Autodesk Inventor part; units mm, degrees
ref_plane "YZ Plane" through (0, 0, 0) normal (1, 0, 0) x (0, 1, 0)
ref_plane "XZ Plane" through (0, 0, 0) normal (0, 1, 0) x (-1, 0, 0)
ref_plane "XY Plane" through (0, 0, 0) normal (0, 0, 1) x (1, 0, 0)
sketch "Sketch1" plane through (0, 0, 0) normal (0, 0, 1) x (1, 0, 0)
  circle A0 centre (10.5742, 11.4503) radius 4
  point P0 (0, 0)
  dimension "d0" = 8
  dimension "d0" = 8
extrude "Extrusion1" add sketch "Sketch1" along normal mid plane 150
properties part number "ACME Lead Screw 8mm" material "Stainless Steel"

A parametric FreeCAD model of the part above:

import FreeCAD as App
import Part
import Sketcher
Q = App.Units.Quantity

doc = App.newDocument("Part")
params = doc.addObject("Spreadsheet::Sheet", "Params")
for row, (alias, value) in enumerate([
    ("sketch1_diameter", "8 mm"),
    ("pad1_length", "150 mm"),
], start=1):
    params.set(f"A{row}", alias)
    params.set(f"B{row}", "=" + value)
    params.setAlias(f"B{row}", alias)

body = doc.addObject("PartDesign::Body", "Body")

# Sketch on XY plane
sketch1 = doc.addObject("Sketcher::SketchObject", "Sketch")
body.addObject(sketch1)
sketch1.AttachmentSupport = (doc.XY_Plane, [""])
sketch1.MapMode = "FlatFace"
sketch1.addGeometry(Part.Circle(App.Vector(10.5742, 11.4503, 0), App.Vector(0, 0, 1), 4), False)
sketch1.addConstraint(Sketcher.Constraint("Diameter", 0, Q("8 mm")))
sketch1.addConstraint(Sketcher.Constraint("DistanceX", -1, 1, 0, 3, Q("10.5742 mm")))
sketch1.addConstraint(Sketcher.Constraint("DistanceY", -1, 1, 0, 3, Q("11.4503 mm")))
sketch1.setExpression("Constraints[0]", "Params.sketch1_diameter")
pad1 = doc.addObject("PartDesign::Pad", "Pad")
body.addObject(pad1)
pad1.Profile = sketch1
pad1.setExpression("Length", "Params.pad1_length")
pad1.Midplane = True

doc.recompute()
